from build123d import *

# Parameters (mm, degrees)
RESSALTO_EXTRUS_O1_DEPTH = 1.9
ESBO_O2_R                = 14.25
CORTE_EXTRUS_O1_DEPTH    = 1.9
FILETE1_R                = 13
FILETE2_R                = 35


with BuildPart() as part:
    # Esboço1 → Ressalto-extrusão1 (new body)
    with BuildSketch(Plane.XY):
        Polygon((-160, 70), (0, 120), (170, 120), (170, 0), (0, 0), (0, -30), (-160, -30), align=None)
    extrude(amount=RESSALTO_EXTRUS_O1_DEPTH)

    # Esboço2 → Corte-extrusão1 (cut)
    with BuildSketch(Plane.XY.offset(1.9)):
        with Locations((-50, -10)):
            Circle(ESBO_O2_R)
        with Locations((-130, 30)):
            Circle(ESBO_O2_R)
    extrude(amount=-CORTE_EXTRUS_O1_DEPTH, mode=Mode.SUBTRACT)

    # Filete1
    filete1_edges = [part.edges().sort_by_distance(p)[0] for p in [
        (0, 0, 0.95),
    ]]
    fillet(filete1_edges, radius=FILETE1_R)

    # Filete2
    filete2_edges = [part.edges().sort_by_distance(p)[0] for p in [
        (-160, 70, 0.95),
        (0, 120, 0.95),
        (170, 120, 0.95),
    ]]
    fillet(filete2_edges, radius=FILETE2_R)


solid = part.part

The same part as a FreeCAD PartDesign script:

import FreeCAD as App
import Part
import Sketcher


def edges_at(feature, points):
    """Names of the edges that pass closest to the given points."""
    edges = feature.Shape.Edges
    near = lambda p: min(range(len(edges)), key=lambda i: edges[i].distToShape(Part.Vertex(*p))[0])
    return sorted({f"Edge{near(p) + 1}" for p in points})


def add_polygon(sketch, points):
    """Adds a closed chain of lines whose ends are joined by coincident constraints."""
    first, n = sketch.GeometryCount, len(points)
    for a, b in zip(points, points[1:] + points[:1]):
        sketch.addGeometry(Part.LineSegment(App.Vector(*a, 0), App.Vector(*b, 0)), False)
    for i in range(n):
        sketch.addConstraint(Sketcher.Constraint("Coincident", first + i, 2, first + (i + 1) % n, 1))

doc = App.newDocument("Part")
params = doc.addObject("Spreadsheet::Sheet", "Params")
for row, (alias, value) in enumerate([
    ("sketch1_width", "160 mm"),
    ("sketch1_width2", "170 mm"),
    ("sketch1_height", "100 mm"),
    ("sketch1_height2", "30 mm"),
    ("sketch1_height3", "120 mm"),
    ("pad1_length", "1.9 mm"),
    ("sketch2_diameter", "28.5 mm"),
    ("pocket1_length", "1.9 mm"),
    ("fillet_radius", "13 mm"),
    ("fillet2_radius", "35 mm"),
], start=1):
    params.set(f"A{row}", alias)
    params.set(f"B{row}", "=" + value)
    params.setAlias(f"B{row}", alias)

body = doc.addObject("PartDesign::Body", "Body")

sketch1 = body.newObject("Sketcher::SketchObject", "Sketch")
sketch1.AttachmentSupport = (doc.getObject("XY_Plane"), [""])
sketch1.MapMode = "FlatFace"
add_polygon(sketch1, [(0, 120), (-160, 70), (-160, -30), (0, -30), (0, 0), (170, 0), (170, 120)])
sketch1.addConstraint([
    Sketcher.Constraint("Vertical", 1),
    Sketcher.Constraint("Horizontal", 2),
    Sketcher.Constraint("Vertical", 3),
    Sketcher.Constraint("Horizontal", 4),
    Sketcher.Constraint("Vertical", 5),
    Sketcher.Constraint("Horizontal", 6),
    Sketcher.Constraint("Coincident", 3, 2, -1, 1),
    Sketcher.Constraint("PointOnObject", 6, 2, -2),
    Sketcher.Constraint("DistanceX", 2, 1, 2, 2, 160.0),
    Sketcher.Constraint("DistanceX", 4, 1, 4, 2, 170.0),
    Sketcher.Constraint("DistanceY", 1, 2, 1, 1, 100.0),
    Sketcher.Constraint("DistanceY", 3, 1, 3, 2, 30.0),
    Sketcher.Constraint("DistanceY", 5, 1, 5, 2, 120.0),
])
sketch1.setExpression("Constraints[15]", "Params.sketch1_width")
sketch1.setExpression("Constraints[16]", "Params.sketch1_width2")
sketch1.setExpression("Constraints[17]", "Params.sketch1_height")
sketch1.setExpression("Constraints[18]", "Params.sketch1_height2")
sketch1.setExpression("Constraints[19]", "Params.sketch1_height3")
pad1 = body.newObject("PartDesign::Pad", "Pad")
pad1.Profile = sketch1
pad1.setExpression("Length", "Params.pad1_length")

sketch2 = body.newObject("Sketcher::SketchObject", "Sketch001")
sketch2.AttachmentSupport = (doc.getObject("XY_Plane"), [""])
sketch2.MapMode = "FlatFace"
sketch2.AttachmentOffset = App.Placement(App.Vector(0, 0, 1.9), App.Rotation())
sketch2.addGeometry([
    Part.Circle(App.Vector(-50, -10, 0), App.Vector(0, 0, 1), 14),
    Part.Circle(App.Vector(-130, 30, 0), App.Vector(0, 0, 1), 14),
], False)
sketch2.addConstraint([
    Sketcher.Constraint("Equal", 0, 1),
    Sketcher.Constraint("Diameter", 0, 28.5),
    Sketcher.Constraint("DistanceX", 0, 3, -1, 1, 50.0),
    Sketcher.Constraint("DistanceY", 0, 3, -1, 1, 10.0),
    Sketcher.Constraint("DistanceX", 1, 3, -1, 1, 130.0),
    Sketcher.Constraint("DistanceY", -1, 1, 1, 3, 30.0),
])
sketch2.setExpression("Constraints[1]", "Params.sketch2_diameter")
pocket1 = body.newObject("PartDesign::Pocket", "Pocket")
pocket1.Profile = sketch2
pocket1.setExpression("Length", "Params.pocket1_length")
doc.recompute()

fillet = body.newObject("PartDesign::Fillet", "Fillet")
fillet.Base = (pocket1, edges_at(pocket1, [(0, 0, 0.95)]))
fillet.setExpression("Radius", "Params.fillet_radius")
doc.recompute()

fillet2 = body.newObject("PartDesign::Fillet", "Fillet001")
fillet2.Base = (fillet, edges_at(fillet, [(-160, 70, 0.95), (0, 120, 0.95), (170, 120, 0.95)]))
fillet2.setExpression("Radius", "Params.fillet2_radius")

doc.recompute()
